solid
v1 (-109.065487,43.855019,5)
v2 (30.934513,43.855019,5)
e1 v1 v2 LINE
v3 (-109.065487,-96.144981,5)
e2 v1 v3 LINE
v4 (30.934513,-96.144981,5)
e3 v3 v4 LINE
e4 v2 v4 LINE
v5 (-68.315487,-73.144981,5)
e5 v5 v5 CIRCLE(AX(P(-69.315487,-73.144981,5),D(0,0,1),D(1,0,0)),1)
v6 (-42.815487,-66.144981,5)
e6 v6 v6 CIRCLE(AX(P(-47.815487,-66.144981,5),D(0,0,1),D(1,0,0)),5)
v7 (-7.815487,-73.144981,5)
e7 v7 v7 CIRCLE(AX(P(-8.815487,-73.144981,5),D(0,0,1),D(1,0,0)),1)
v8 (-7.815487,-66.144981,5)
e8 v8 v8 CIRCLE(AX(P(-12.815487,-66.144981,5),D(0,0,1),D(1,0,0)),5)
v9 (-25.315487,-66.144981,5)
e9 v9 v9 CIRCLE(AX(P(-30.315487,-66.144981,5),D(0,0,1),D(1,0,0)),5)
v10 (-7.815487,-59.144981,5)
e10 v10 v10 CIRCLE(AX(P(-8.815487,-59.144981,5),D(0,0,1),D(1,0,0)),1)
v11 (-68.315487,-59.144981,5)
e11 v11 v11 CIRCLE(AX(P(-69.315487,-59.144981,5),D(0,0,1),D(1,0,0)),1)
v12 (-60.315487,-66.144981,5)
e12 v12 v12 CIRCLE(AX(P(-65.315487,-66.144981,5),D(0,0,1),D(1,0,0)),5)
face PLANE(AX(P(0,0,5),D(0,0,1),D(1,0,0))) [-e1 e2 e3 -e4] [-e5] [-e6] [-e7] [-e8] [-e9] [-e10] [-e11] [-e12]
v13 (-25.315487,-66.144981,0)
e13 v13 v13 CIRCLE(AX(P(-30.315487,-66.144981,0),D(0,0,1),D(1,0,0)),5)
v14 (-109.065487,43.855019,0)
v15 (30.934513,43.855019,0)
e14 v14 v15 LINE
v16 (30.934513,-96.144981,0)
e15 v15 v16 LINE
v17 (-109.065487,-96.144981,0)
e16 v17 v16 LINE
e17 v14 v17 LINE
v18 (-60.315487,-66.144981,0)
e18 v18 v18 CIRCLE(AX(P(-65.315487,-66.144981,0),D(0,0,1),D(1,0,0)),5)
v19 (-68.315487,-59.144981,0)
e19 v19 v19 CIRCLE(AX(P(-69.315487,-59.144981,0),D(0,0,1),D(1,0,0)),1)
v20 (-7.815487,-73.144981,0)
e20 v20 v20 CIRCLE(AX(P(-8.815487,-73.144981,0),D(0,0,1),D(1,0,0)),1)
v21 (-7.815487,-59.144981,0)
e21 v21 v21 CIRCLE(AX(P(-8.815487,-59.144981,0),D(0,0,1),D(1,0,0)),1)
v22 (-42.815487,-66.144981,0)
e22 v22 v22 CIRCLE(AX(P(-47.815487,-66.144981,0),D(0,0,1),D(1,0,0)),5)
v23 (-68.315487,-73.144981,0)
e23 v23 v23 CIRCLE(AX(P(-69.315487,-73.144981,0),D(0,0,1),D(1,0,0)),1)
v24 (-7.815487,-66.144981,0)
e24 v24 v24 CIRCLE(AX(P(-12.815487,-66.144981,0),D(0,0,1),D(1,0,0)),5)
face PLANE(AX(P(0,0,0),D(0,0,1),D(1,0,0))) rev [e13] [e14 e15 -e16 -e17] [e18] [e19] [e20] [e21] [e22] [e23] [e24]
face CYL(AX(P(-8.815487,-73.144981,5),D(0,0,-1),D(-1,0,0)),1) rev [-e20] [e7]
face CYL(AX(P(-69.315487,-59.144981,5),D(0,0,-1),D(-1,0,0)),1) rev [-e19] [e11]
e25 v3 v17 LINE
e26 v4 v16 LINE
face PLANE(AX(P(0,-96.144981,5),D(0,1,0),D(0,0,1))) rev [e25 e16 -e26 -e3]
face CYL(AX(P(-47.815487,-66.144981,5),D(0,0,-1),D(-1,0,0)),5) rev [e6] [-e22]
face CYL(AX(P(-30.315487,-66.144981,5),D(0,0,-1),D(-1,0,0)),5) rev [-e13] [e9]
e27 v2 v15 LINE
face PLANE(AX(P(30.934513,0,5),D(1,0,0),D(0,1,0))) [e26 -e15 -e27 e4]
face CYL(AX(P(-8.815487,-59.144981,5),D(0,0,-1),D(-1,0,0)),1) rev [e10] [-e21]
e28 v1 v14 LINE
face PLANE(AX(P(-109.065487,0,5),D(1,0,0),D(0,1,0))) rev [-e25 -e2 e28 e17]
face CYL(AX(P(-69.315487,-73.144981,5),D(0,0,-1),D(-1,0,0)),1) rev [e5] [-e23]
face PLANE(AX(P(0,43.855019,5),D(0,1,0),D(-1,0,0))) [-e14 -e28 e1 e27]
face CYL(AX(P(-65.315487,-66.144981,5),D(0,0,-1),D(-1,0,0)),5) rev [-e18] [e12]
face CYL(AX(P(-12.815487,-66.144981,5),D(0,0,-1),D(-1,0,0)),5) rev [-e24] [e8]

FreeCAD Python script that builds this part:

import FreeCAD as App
import Part
import Sketcher

V = App.Vector

doc = App.newDocument("Part")
body = doc.addObject("PartDesign::Body", "Body")

sketch1 = body.newObject("Sketcher::SketchObject", "Sketch")
sketch1.AttachmentSupport = (doc.getObject("XY_Plane"), [""])
sketch1.MapMode = "FlatFace"
sketch1.addGeometry(Part.LineSegment(V(-109.065487, 43.855019, 0), V(-109.065487, -96.144981, 0)), False)
sketch1.addGeometry(Part.LineSegment(V(-109.065487, -96.144981, 0), V(30.934513, -96.144981, 0)), False)
sketch1.addGeometry(Part.LineSegment(V(30.934513, -96.144981, 0), V(30.934513, 43.855019, 0)), False)
sketch1.addGeometry(Part.LineSegment(V(30.934513, 43.855019, 0), V(-109.065487, 43.855019, 0)), False)
sketch1.addGeometry(Part.LineSegment(V(-4.815487, -77.144981, 0), V(-73.315487, -77.144981, 0)), False)
sketch1.addGeometry(Part.LineSegment(V(-73.315487, -77.144981, 0), V(-73.315487, -55.144981, 0)), False)
sketch1.addGeometry(Part.LineSegment(V(-73.315487, -55.144981, 0), V(-4.815487, -55.144981, 0)), False)
sketch1.addGeometry(Part.LineSegment(V(-4.815487, -55.144981, 0), V(-4.815487, -77.144981, 0)), False)
sketch1.addConstraint(Sketcher.Constraint("Coincident", 0, 2, 1, 1))
sketch1.addConstraint(Sketcher.Constraint("Coincident", 1, 2, 2, 1))
sketch1.addConstraint(Sketcher.Constraint("Coincident", 2, 2, 3, 1))
sketch1.addConstraint(Sketcher.Constraint("Coincident", 3, 2, 0, 1))
sketch1.addConstraint(Sketcher.Constraint("Coincident", 4, 2, 5, 1))
sketch1.addConstraint(Sketcher.Constraint("Coincident", 5, 2, 6, 1))
sketch1.addConstraint(Sketcher.Constraint("Coincident", 6, 2, 7, 1))
sketch1.addConstraint(Sketcher.Constraint("Coincident", 7, 2, 4, 1))
sketch1.addConstraint(Sketcher.Constraint("Vertical", 0))
sketch1.addConstraint(Sketcher.Constraint("Horizontal", 1))
sketch1.addConstraint(Sketcher.Constraint("Vertical", 2))
sketch1.addConstraint(Sketcher.Constraint("Horizontal", 3))
sketch1.addConstraint(Sketcher.Constraint("Horizontal", 4))
sketch1.addConstraint(Sketcher.Constraint("Vertical", 5))
sketch1.addConstraint(Sketcher.Constraint("Horizontal", 6))
sketch1.addConstraint(Sketcher.Constraint("Vertical", 7))
sketch1.addConstraint(Sketcher.Constraint("Equal", 3, 0))
sketch1.addConstraint(Sketcher.Constraint("DistanceX", 1, 1, 1, 2, 140.0))
sketch1.addConstraint(Sketcher.Constraint("DistanceY", 5, 1, 5, 2, 22.0))
sketch1.addConstraint(Sketcher.Constraint("DistanceX", 4, 2, 4, 1, 68.5))
sketch1.addConstraint(Sketcher.Constraint("DistanceY", 0, 2, 4, 2, 19.0))
sketch1.addConstraint(Sketcher.Constraint("DistanceX", 0, 2, 4, 2, 35.75))
sketch1.addConstraint(Sketcher.Constraint("DistanceY", 0, 2, -1, 1, 96.144981))
sketch1.addConstraint(Sketcher.Constraint("DistanceX", 0, 2, -1, 1, 109.065487))
pad1 = body.newObject("PartDesign::Pad", "Pad")
pad1.Profile = sketch1
pad1.Length = 5

sketch2 = body.newObject("Sketcher::SketchObject", "Sketch001")
sketch2.AttachmentSupport = (doc.getObject("XY_Plane"), [""])
sketch2.MapMode = "FlatFace"
sketch2.addGeometry(Part.LineSegment(V(-109.065487, 43.855019, 0), V(-109.065487, -96.144981, 0)), False)
sketch2.addGeometry(Part.LineSegment(V(-109.065487, -96.144981, 0), V(30.934513, -96.144981, 0)), False)
sketch2.addGeometry(Part.LineSegment(V(30.934513, -96.144981, 0), V(30.934513, 43.855019, 0)), False)
sketch2.addGeometry(Part.LineSegment(V(30.934513, 43.855019, 0), V(-109.065487, 43.855019, 0)), False)
sketch2.addGeometry(Part.Circle(V(-69.315487, -59.144981, 0), V(0, 0, 1), 1), False)
sketch2.addGeometry(Part.Circle(V(-8.815487, -59.144981, 0), V(0, 0, 1), 1), False)
sketch2.addGeometry(Part.Circle(V(-30.315487, -66.144981, 0), V(0, 0, 1), 5), False)
sketch2.addGeometry(Part.Circle(V(-12.815487, -66.144981, 0), V(0, 0, 1), 5), False)
sketch2.addGeometry(Part.Circle(V(-69.315487, -73.144981, 0), V(0, 0, 1), 1), False)
sketch2.addGeometry(Part.Circle(V(-8.815487, -73.144981, 0), V(0, 0, 1), 1), False)
sketch2.addGeometry(Part.Circle(V(-65.315487, -66.144981, 0), V(0, 0, 1), 5), False)
sketch2.addGeometry(Part.Circle(V(-47.815487, -66.144981, 0), V(0, 0, 1), 5), False)
sketch2.addConstraint(Sketcher.Constraint("Coincident", 0, 2, 1, 1))
sketch2.addConstraint(Sketcher.Constraint("Coincident", 1, 2, 2, 1))
sketch2.addConstraint(Sketcher.Constraint("Coincident", 2, 2, 3, 1))
sketch2.addConstraint(Sketcher.Constraint("Coincident", 3, 2, 0, 1))
sketch2.addConstraint(Sketcher.Constraint("Vertical", 0))
sketch2.addConstraint(Sketcher.Constraint("Horizontal", 1))
sketch2.addConstraint(Sketcher.Constraint("Vertical", 2))
sketch2.addConstraint(Sketcher.Constraint("Horizontal", 3))
sketch2.addConstraint(Sketcher.Constraint("Equal", 4, 5))
sketch2.addConstraint(Sketcher.Constraint("Equal", 6, 7))
sketch2.addConstraint(Sketcher.Constraint("Equal", 5, 8))
sketch2.addConstraint(Sketcher.Constraint("Equal", 8, 9))
sketch2.addConstraint(Sketcher.Constraint("Equal", 7, 10))
sketch2.addConstraint(Sketcher.Constraint("Equal", 10, 11))
sketch2.addConstraint(Sketcher.Constraint("Horizontal", 4, 3, 5, 3))
sketch2.addConstraint(Sketcher.Constraint("Horizontal", 6, 3, 7, 3))
sketch2.addConstraint(Sketcher.Constraint("Horizontal", 8, 3, 9, 3))
sketch2.addConstraint(Sketcher.Constraint("Horizontal", 7, 3, 10, 3))
sketch2.addConstraint(Sketcher.Constraint("Horizontal", 10, 3, 11, 3))
sketch2.addConstraint(Sketcher.Constraint("Vertical", 4, 3, 8, 3))
sketch2.addConstraint(Sketcher.Constraint("Vertical", 5, 3, 9, 3))
sketch2.addConstraint(Sketcher.Constraint("Equal", 3, 0))
sketch2.addConstraint(Sketcher.Constraint("Diameter", 4, 2.0))
sketch2.addConstraint(Sketcher.Constraint("Diameter", 6, 10.0))
sketch2.addConstraint(Sketcher.Constraint("DistanceX", 1, 1, 1, 2, 140.0))
sketch2.addConstraint(Sketcher.Constraint("DistanceY", 6, 3, 5, 3, 7.0))
sketch2.addConstraint(Sketcher.Constraint("DistanceX", 4, 3, 6, 3, 39.0))
sketch2.addConstraint(Sketcher.Constraint("DistanceX", 7, 3, 5, 3, 4.0))
sketch2.addConstraint(Sketcher.Constraint("DistanceY", 8, 3, 4, 3, 14.0))
sketch2.addConstraint(Sketcher.Constraint("DistanceX", 4, 3, 10, 3, 4.0))
sketch2.addConstraint(Sketcher.Constraint("DistanceX", 11, 3, 7, 3, 35.0))
sketch2.addConstraint(Sketcher.Constraint("DistanceY", 0, 2, 8, 3, 23.0))
sketch2.addConstraint(Sketcher.Constraint("DistanceX", 4, 3, 5, 3, 60.5))
sketch2.addConstraint(Sketcher.Constraint("DistanceX", 0, 2, 8, 3, 39.75))
sketch2.addConstraint(Sketcher.Constraint("DistanceY", 4, 3, -1, 1, 59.144981))
sketch2.addConstraint(Sketcher.Constraint("DistanceX", 4, 3, -1, 1, 69.315487))
pad2 = body.newObject("PartDesign::Pad", "Pad001")
pad2.Profile = sketch2
pad2.Length = 5

doc.recompute()
